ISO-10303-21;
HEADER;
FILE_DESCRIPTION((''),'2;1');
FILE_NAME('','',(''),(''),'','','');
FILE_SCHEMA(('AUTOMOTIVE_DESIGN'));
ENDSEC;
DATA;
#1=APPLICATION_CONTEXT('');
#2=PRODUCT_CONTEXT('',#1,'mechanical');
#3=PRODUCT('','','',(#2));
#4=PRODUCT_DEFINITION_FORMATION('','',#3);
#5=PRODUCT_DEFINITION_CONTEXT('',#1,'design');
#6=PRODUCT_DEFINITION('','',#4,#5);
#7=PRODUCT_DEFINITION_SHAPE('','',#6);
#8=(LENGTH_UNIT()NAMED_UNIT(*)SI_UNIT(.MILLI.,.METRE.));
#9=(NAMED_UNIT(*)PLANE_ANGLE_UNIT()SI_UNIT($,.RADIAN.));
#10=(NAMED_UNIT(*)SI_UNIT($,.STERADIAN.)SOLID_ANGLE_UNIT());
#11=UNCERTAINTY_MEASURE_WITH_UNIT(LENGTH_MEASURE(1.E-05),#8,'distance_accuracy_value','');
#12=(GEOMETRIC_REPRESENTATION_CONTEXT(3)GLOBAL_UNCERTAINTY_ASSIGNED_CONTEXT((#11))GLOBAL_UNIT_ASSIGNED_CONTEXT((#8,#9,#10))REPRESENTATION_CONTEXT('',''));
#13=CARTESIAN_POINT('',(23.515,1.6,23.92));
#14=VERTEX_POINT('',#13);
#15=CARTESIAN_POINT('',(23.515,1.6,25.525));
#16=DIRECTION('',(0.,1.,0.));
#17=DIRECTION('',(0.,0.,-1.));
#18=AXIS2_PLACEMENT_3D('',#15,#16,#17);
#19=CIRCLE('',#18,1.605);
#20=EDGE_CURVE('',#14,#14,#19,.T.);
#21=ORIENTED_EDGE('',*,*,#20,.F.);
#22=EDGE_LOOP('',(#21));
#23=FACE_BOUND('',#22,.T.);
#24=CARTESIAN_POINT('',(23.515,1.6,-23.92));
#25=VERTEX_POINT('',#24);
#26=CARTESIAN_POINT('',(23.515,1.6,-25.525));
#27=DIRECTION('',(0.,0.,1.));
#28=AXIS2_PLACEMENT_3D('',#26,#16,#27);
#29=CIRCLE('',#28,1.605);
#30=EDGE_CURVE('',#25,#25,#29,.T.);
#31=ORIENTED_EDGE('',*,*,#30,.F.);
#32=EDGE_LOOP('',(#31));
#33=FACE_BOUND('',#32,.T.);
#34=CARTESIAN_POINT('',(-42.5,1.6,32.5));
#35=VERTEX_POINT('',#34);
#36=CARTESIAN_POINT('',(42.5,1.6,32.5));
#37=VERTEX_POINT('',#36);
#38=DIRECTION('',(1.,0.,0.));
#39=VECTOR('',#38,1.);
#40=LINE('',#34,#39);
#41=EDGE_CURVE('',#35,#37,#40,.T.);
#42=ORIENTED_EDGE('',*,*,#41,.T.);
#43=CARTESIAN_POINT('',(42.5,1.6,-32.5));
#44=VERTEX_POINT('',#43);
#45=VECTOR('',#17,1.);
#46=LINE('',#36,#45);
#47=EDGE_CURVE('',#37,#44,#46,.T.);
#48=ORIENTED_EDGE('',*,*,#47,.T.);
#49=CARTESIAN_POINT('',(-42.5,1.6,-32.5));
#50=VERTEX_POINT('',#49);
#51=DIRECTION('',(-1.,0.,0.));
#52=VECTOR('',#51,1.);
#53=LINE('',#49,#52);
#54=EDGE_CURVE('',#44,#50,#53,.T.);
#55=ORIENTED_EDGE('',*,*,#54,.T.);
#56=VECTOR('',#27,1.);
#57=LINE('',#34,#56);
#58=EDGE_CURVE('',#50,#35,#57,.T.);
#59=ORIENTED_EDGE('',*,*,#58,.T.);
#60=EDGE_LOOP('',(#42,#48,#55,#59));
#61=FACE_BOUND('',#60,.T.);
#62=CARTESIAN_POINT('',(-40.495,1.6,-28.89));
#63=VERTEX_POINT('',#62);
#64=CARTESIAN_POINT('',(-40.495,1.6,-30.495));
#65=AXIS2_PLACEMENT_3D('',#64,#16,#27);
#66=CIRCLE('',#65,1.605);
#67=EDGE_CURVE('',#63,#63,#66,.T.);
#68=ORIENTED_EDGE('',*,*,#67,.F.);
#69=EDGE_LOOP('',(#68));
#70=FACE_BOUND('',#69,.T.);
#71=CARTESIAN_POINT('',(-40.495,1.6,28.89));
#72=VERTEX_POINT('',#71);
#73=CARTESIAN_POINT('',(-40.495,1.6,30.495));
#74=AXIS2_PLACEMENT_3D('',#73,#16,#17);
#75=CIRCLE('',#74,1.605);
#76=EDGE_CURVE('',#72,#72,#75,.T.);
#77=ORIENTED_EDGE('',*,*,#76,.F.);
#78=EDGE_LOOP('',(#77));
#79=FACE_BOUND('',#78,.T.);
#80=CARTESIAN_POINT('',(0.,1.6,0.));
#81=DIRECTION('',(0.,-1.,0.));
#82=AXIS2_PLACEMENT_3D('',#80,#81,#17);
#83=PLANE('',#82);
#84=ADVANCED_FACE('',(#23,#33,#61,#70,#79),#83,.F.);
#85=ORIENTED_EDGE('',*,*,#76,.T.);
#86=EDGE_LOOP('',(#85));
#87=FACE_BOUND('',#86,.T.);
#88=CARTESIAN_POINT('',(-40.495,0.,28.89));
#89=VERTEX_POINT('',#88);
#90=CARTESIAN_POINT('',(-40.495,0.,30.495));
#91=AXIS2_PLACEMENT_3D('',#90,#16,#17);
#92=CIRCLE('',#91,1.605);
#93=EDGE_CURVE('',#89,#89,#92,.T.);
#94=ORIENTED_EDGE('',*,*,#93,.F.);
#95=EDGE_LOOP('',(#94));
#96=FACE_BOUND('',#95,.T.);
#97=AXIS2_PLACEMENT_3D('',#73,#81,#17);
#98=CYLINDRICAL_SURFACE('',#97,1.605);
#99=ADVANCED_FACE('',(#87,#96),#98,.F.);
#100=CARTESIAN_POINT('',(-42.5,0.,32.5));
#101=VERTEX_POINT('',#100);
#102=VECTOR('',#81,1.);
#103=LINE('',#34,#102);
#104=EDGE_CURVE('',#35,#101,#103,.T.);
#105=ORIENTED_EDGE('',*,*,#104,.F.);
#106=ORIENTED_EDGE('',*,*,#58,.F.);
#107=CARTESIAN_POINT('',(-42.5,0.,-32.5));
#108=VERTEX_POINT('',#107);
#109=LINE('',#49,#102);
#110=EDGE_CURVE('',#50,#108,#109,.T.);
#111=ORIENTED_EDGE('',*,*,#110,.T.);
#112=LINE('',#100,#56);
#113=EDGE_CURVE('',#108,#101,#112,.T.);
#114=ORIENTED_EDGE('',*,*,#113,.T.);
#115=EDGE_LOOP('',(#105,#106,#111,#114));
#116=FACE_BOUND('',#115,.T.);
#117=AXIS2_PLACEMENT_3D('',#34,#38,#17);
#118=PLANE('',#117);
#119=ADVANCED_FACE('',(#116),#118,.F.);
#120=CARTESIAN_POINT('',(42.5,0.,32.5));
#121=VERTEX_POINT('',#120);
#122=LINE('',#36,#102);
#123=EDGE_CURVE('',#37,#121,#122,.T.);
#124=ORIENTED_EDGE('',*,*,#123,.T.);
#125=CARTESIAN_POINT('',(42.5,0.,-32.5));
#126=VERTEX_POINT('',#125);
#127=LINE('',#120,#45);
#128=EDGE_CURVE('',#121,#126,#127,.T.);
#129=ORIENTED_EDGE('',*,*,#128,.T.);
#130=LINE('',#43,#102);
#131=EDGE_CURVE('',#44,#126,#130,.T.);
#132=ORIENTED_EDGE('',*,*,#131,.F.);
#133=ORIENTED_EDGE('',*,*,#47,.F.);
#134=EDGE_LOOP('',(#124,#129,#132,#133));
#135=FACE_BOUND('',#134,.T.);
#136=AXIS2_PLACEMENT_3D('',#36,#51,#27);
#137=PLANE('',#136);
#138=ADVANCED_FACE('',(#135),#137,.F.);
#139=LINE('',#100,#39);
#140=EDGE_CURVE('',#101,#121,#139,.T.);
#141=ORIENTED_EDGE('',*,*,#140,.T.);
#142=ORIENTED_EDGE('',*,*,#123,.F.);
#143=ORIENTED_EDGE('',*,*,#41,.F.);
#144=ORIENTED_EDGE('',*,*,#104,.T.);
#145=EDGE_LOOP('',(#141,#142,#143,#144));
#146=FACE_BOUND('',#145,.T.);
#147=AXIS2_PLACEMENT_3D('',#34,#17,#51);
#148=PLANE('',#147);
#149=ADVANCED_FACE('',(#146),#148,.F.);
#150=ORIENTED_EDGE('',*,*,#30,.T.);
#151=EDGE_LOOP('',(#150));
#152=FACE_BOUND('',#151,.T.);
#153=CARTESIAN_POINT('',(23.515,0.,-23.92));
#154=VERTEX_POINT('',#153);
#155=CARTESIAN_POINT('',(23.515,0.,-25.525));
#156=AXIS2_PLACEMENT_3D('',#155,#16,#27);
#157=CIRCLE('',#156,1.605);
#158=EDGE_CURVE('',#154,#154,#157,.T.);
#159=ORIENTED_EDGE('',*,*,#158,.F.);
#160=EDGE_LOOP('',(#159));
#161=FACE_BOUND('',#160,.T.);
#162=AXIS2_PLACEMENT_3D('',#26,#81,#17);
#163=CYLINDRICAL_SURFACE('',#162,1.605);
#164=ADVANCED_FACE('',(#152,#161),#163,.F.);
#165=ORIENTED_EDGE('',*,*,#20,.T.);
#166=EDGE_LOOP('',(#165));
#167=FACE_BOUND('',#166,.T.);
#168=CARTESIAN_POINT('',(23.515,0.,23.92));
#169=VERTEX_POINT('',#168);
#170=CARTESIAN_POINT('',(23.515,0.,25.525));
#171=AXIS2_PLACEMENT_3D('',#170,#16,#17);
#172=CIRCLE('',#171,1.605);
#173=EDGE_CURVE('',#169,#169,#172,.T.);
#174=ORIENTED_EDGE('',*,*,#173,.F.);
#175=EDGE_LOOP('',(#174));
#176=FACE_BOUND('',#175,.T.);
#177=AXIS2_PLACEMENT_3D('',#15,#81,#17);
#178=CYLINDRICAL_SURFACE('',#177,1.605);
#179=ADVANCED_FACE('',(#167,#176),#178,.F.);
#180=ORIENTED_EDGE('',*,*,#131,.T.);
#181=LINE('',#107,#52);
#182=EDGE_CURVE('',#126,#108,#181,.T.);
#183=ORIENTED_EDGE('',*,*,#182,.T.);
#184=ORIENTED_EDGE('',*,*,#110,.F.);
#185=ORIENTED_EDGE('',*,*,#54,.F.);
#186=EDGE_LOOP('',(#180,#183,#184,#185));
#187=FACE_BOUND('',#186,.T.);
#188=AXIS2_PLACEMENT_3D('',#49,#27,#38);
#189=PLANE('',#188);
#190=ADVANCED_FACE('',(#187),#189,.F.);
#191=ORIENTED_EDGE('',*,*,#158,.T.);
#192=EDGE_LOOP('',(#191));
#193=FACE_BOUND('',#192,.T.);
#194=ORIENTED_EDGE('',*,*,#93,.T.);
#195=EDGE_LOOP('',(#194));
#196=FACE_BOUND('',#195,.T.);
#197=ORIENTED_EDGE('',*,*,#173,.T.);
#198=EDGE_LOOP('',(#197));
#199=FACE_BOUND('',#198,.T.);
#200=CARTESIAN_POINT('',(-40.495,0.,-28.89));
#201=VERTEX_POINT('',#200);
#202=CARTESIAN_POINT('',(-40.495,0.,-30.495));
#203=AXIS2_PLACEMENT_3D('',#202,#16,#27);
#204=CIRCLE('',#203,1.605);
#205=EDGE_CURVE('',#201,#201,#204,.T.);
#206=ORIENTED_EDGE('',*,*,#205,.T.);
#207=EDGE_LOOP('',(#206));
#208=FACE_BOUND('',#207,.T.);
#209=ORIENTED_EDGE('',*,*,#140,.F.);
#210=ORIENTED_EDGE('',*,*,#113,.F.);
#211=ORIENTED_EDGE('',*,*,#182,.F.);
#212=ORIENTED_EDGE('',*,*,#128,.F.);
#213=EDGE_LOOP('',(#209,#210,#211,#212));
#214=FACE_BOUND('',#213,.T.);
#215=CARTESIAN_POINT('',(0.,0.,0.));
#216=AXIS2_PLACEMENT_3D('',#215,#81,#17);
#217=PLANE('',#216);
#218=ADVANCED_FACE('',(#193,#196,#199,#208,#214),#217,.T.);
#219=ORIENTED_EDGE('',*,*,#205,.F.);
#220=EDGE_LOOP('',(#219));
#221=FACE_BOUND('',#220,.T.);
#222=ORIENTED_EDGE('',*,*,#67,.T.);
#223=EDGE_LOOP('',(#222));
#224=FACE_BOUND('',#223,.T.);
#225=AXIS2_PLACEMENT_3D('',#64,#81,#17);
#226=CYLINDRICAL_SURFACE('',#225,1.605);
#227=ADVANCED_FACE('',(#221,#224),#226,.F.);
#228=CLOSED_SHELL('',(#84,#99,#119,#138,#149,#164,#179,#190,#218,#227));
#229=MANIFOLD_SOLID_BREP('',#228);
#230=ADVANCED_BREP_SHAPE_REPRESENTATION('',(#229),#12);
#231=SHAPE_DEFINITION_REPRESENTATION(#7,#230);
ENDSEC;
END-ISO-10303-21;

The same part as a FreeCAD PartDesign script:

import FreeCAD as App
import Part
import Sketcher
Q = App.Units.Quantity


def add_polygon(sketch, points):
    """Adds a closed chain of lines whose ends are joined by coincident constraints."""
    first, n = sketch.GeometryCount, len(points)
    for a, b in zip(points, points[1:] + points[:1]):
        sketch.addGeometry(Part.LineSegment(App.Vector(*a, 0), App.Vector(*b, 0)), False)
    for i in range(n):
        sketch.addConstraint(Sketcher.Constraint("Coincident", first + i, 2, first + (i + 1) % n, 1))

doc = App.newDocument("Part")
body = doc.addObject("PartDesign::Body", "Body")

sketch1 = body.newObject("Sketcher::SketchObject", "Sketch")
sketch1.AttachmentSupport = (doc.getObject("XZ_Plane"), [""])
sketch1.MapMode = "FlatFace"
add_polygon(sketch1, [(-42.5, -32.5), (-42.5, 32.5), (42.5, 32.5), (42.5, -32.5)])
sketch1.addGeometry(Part.Circle(App.Vector(-40.5, 30.5, 0), App.Vector(0, 0, 1), 1.6), False)
sketch1.addGeometry(Part.Circle(App.Vector(23.5, 25.5, 0), App.Vector(0, 0, 1), 1.6), False)
sketch1.addGeometry(Part.Circle(App.Vector(-40.5, -30.5, 0), App.Vector(0, 0, 1), 1.6), False)
sketch1.addGeometry(Part.Circle(App.Vector(23.5, -25.5, 0), App.Vector(0, 0, 1), 1.6), False)
sketch1.addConstraint(Sketcher.Constraint("Vertical", 0))
sketch1.addConstraint(Sketcher.Constraint("Horizontal", 1))
sketch1.addConstraint(Sketcher.Constraint("Vertical", 2))
sketch1.addConstraint(Sketcher.Constraint("Horizontal", 3))
sketch1.addConstraint(Sketcher.Constraint("Equal", 4, 5))
sketch1.addConstraint(Sketcher.Constraint("Equal", 5, 6))
sketch1.addConstraint(Sketcher.Constraint("Equal", 6, 7))
sketch1.addConstraint(Sketcher.Constraint("Symmetric", 0, 2, 2, 2, -1, 1))
sketch1.addConstraint(Sketcher.Constraint("Symmetric", 4, 3, 6, 3, -1))
sketch1.addConstraint(Sketcher.Constraint("Symmetric", 5, 3, 7, 3, -1))
sketch1.addConstraint(Sketcher.Constraint("Diameter", 4, Q("3.21 mm")))
sketch1.addConstraint(Sketcher.Constraint("DistanceX", 1, 1, 1, 2, Q("85 mm")))
sketch1.addConstraint(Sketcher.Constraint("DistanceY", 0, 1, 0, 2, Q("65 mm")))
sketch1.addConstraint(Sketcher.Constraint("DistanceX", 4, 3, 5, 3, Q("64.01 mm")))
sketch1.addConstraint(Sketcher.Constraint("DistanceY", 5, 3, 4, 3, Q("4.97 mm")))
sketch1.addConstraint(Sketcher.Constraint("DistanceY", 6, 3, 4, 3, Q("60.99 mm")))
sketch1.addConstraint(Sketcher.Constraint("DistanceX", 4, 3, -1, 1, Q("40.495 mm")))
pad1 = body.newObject("PartDesign::Pad", "Pad")
pad1.Profile = sketch1
pad1.Length = 1.6
pad1.Reversed = True

doc.recompute()
